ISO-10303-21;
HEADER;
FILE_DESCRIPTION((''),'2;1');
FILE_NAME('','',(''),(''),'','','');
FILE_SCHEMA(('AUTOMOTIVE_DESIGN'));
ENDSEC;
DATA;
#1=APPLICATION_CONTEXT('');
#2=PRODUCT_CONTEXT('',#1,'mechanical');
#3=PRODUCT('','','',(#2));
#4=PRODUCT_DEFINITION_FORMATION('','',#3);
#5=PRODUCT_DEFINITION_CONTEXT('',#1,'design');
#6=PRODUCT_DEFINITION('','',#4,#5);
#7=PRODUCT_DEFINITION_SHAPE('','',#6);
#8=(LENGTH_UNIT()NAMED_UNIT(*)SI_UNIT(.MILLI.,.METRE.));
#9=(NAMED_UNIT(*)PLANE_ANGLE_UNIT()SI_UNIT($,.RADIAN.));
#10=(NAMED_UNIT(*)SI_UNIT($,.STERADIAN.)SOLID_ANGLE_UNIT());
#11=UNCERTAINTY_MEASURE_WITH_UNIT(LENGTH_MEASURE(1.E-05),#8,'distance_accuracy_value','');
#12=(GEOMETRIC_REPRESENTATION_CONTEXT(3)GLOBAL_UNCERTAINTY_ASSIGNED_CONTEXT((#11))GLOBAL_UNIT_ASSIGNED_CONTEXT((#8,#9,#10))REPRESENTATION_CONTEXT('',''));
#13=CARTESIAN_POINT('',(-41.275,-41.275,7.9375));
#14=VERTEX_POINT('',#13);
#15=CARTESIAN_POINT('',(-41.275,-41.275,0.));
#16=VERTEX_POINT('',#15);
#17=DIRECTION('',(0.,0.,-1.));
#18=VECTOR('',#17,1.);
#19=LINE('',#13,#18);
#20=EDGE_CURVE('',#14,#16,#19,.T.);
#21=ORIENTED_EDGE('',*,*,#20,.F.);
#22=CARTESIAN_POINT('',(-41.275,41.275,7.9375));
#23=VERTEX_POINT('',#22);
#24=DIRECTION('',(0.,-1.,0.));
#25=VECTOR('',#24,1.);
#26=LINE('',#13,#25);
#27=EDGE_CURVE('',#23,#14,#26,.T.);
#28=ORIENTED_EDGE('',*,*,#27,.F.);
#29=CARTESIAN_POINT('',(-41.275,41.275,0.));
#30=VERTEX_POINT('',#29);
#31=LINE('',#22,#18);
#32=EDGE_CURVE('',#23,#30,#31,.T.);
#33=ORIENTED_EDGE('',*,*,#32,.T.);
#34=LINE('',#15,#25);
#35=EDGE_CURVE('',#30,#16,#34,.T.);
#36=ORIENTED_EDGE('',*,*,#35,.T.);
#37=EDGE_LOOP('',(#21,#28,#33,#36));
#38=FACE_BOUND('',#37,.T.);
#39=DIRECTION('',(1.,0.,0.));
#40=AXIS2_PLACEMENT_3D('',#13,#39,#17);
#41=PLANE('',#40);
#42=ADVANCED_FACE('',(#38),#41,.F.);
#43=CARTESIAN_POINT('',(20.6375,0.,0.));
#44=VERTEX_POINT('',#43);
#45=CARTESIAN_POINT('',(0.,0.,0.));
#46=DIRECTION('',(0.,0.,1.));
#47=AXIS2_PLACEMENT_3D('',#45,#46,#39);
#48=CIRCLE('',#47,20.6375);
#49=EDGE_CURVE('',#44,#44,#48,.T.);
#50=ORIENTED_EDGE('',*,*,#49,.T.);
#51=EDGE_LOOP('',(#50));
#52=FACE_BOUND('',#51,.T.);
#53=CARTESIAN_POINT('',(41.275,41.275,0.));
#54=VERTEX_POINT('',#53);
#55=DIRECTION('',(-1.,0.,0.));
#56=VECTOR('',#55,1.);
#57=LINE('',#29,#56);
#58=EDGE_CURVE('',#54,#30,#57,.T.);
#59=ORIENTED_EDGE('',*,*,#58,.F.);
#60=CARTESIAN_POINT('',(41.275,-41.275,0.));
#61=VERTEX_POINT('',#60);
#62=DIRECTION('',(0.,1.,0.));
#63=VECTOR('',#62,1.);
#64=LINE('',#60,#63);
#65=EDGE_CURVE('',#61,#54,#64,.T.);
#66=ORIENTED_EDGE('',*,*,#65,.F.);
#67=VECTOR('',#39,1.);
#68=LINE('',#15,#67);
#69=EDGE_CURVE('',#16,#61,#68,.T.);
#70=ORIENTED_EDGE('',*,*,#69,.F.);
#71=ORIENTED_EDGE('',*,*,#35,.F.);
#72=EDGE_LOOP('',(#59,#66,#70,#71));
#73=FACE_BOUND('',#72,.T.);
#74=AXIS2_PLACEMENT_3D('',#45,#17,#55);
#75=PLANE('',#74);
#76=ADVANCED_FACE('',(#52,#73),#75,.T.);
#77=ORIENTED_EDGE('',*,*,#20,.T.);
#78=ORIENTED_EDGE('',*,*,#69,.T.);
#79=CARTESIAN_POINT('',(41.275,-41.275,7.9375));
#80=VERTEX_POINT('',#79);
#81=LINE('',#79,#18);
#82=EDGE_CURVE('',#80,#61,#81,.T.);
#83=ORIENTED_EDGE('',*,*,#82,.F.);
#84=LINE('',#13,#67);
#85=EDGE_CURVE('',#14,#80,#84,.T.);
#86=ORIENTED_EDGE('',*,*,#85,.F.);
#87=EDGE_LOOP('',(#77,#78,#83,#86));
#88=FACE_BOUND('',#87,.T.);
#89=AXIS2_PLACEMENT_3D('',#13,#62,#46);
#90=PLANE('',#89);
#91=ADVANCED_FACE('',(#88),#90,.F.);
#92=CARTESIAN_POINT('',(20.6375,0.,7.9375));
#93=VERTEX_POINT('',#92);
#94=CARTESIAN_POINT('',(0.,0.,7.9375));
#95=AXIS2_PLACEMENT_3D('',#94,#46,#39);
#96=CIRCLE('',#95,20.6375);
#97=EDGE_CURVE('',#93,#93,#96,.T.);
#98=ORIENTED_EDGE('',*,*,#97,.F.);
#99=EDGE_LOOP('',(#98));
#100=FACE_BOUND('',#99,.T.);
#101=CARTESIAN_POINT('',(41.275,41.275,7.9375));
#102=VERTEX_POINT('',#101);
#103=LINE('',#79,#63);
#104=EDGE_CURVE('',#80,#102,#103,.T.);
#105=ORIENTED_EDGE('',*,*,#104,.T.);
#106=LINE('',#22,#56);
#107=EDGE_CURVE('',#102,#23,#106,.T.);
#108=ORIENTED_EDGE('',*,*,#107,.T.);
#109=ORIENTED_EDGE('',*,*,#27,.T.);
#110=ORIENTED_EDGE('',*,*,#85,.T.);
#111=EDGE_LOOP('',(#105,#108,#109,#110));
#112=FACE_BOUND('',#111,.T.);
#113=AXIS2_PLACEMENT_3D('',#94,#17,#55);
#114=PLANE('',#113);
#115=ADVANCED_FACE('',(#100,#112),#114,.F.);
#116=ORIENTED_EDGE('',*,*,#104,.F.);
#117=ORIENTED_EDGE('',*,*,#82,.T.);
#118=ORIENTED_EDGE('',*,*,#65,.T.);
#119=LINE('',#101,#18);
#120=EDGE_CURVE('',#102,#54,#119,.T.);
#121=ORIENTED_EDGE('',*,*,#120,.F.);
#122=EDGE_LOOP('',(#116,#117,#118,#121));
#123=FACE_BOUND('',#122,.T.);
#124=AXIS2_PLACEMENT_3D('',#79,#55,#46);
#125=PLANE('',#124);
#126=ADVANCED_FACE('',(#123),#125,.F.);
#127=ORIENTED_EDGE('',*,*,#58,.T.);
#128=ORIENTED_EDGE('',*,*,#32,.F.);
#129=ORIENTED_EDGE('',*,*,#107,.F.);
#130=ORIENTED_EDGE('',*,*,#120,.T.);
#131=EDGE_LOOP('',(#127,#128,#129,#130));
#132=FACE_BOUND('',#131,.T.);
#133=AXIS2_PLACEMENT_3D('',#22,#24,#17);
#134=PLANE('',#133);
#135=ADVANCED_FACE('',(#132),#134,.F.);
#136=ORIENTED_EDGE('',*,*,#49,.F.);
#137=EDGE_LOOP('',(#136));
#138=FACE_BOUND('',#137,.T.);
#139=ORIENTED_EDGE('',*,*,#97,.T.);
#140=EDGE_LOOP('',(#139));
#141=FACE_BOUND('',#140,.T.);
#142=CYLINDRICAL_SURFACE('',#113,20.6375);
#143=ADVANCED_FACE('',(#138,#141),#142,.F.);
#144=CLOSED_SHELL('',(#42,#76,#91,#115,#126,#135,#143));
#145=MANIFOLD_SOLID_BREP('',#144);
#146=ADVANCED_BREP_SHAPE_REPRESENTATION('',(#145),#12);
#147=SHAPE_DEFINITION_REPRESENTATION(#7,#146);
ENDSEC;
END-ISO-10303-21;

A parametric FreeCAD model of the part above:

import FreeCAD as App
import Part
import Sketcher
from FreeCAD import Vector
Q = App.Units.Quantity


def add_polygon(sketch, points):
    """Adds a closed chain of lines whose ends are joined by coincident constraints."""
    first, n = sketch.GeometryCount, len(points)
    for a, b in zip(points, points[1:] + points[:1]):
        sketch.addGeometry(Part.LineSegment(App.Vector(*a, 0), App.Vector(*b, 0)), False)
    for i in range(n):
        sketch.addConstraint(Sketcher.Constraint("Coincident", first + i, 2, first + (i + 1) % n, 1))

doc = App.newDocument("Part")
body = doc.addObject("PartDesign::Body", "Body")

sketch1 = body.newObject("Sketcher::SketchObject", "Sketch")
sketch1.AttachmentSupport = (doc.getObject("XY_Plane"), [""])
sketch1.MapMode = "FlatFace"
add_polygon(sketch1, [(-41, 41), (-41, -41), (41, -41), (41, 41)])
sketch1.addGeometry(Part.Circle(Vector(0, 0, 0), Vector(0, 0, 1), 21), False)
sketch1.addConstraint([
    Sketcher.Constraint("Vertical", 0),
    Sketcher.Constraint("Horizontal", 1),
    Sketcher.Constraint("Vertical", 2),
    Sketcher.Constraint("Horizontal", 3),
    Sketcher.Constraint("Coincident", 4, 3, -1, 1),
    Sketcher.Constraint("Symmetric", 0, 2, 2, 2, -1, 1),
    Sketcher.Constraint("Equal", 3, 0),
    Sketcher.Constraint("Diameter", 4, Q("1.625 in")),
    Sketcher.Constraint("DistanceX", 1, 1, 1, 2, Q("3.25 in")),
])
pad1 = body.newObject("PartDesign::Pad", "Pad")
pad1.Profile = sketch1
pad1.Length = Q("0.3125 in")

doc.recompute()
